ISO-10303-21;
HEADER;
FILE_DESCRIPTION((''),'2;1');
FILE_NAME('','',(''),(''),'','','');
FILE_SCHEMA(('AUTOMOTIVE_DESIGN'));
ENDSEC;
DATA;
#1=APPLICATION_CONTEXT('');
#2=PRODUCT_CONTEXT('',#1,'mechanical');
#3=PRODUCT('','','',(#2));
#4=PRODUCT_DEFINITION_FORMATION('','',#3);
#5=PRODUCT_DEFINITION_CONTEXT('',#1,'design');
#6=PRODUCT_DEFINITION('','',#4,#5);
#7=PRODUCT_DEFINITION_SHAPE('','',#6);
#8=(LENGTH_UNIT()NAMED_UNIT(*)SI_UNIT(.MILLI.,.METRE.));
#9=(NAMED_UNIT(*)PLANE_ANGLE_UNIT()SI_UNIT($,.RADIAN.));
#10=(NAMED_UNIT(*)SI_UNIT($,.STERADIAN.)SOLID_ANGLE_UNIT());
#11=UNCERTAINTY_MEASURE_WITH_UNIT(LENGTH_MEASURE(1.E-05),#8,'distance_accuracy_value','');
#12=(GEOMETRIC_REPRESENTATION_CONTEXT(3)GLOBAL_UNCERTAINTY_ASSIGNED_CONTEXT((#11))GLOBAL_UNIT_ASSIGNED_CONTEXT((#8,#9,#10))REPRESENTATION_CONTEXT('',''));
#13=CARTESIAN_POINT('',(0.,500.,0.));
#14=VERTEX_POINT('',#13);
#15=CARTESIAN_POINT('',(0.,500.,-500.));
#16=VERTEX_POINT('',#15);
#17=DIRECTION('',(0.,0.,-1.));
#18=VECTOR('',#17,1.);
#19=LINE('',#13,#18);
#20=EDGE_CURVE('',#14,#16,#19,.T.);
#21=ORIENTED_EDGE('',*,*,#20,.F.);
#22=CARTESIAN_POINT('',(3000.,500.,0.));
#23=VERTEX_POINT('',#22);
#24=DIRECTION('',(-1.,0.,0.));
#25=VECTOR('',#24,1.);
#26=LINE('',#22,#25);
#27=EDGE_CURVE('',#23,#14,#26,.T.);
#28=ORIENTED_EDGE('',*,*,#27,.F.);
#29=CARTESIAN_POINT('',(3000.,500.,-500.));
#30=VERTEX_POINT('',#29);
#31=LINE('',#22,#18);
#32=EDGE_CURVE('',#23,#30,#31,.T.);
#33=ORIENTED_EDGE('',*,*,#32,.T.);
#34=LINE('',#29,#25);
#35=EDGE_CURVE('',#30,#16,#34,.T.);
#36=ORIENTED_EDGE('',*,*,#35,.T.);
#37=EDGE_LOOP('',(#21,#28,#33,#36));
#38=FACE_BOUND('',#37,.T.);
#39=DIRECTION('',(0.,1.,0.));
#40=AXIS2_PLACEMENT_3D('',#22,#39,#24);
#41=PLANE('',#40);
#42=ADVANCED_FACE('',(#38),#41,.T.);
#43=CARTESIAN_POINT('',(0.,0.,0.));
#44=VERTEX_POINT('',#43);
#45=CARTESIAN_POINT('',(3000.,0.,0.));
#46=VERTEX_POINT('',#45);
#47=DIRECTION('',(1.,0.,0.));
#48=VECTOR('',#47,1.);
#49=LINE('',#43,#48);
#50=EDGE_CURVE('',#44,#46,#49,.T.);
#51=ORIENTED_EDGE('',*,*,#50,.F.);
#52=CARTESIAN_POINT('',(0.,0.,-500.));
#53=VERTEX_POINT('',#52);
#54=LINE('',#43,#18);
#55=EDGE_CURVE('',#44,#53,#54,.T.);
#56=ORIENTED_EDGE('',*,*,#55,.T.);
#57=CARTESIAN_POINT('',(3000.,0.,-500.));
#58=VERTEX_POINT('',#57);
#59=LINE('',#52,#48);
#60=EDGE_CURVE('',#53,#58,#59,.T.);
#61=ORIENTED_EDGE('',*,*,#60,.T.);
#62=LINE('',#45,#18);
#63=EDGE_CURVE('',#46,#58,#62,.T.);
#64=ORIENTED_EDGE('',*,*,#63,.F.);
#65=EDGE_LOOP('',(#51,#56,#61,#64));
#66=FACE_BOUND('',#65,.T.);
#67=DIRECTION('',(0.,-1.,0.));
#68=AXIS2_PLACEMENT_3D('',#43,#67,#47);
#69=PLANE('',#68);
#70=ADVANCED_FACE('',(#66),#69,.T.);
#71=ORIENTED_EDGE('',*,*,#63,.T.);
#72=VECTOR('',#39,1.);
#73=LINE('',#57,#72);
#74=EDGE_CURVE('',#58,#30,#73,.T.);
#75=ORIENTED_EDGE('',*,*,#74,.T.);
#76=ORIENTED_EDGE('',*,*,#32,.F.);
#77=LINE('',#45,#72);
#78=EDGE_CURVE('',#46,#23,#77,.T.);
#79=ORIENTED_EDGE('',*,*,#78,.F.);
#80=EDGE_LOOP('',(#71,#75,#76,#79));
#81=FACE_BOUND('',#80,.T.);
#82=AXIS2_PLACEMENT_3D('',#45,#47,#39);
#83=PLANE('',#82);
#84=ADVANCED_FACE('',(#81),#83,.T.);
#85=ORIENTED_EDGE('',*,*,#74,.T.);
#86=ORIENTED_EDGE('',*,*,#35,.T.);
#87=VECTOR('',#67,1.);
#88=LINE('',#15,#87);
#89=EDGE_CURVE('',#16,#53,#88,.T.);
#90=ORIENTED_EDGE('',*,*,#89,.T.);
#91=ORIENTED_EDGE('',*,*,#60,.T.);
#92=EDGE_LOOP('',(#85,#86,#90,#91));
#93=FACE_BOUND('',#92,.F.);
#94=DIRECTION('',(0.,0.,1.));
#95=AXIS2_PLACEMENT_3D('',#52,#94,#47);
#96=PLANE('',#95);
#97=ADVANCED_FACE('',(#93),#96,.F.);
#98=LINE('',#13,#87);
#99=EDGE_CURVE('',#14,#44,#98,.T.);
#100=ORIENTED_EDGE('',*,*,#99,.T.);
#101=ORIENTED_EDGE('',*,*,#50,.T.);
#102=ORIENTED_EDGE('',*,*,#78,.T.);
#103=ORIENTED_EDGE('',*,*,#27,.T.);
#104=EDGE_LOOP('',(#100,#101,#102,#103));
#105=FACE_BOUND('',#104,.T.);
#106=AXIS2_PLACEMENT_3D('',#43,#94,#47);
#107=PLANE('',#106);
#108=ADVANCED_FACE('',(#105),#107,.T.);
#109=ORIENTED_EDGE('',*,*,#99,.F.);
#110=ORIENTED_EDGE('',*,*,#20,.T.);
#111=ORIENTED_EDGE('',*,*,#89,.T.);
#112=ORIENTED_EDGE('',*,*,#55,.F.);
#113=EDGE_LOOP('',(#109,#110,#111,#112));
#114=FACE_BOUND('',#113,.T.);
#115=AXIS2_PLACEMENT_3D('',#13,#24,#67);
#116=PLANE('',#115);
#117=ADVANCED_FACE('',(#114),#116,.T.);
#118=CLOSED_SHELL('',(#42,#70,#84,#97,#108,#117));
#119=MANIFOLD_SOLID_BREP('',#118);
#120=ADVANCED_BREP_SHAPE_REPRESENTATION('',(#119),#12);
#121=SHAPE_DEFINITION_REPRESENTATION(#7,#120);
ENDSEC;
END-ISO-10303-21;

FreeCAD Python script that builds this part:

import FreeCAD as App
import Part
import Sketcher

doc = App.newDocument("Part")
body = doc.addObject("PartDesign::Body", "Body")

sketch1 = body.newObject("Sketcher::SketchObject", "Sketch")
sketch1.AttachmentSupport = (doc.getObject("XY_Plane"), [""])
sketch1.MapMode = "FlatFace"
sketch1.addGeometry([
    Part.LineSegment(App.Vector(0, 500, 0), App.Vector(0, 0, 0)),
    Part.LineSegment(App.Vector(0, 0, 0), App.Vector(3000, 0, 0)),
    Part.LineSegment(App.Vector(3000, 0, 0), App.Vector(3000, 500, 0)),
    Part.LineSegment(App.Vector(3000, 500, 0), App.Vector(0, 500, 0)),
], False)
sketch1.addConstraint([
    Sketcher.Constraint("Coincident", 0, 2, 1, 1),
    Sketcher.Constraint("Coincident", 1, 2, 2, 1),
    Sketcher.Constraint("Coincident", 2, 2, 3, 1),
    Sketcher.Constraint("Coincident", 3, 2, 0, 1),
    Sketcher.Constraint("Vertical", 0),
    Sketcher.Constraint("Horizontal", 1),
    Sketcher.Constraint("Vertical", 2),
    Sketcher.Constraint("Horizontal", 3),
    Sketcher.Constraint("Coincident", 0, 2, -1, 1),
    Sketcher.Constraint("DistanceX", 1, 1, 1, 2, 3000.0),
    Sketcher.Constraint("DistanceY", 0, 2, 0, 1, 500.0),
])
pad1 = body.newObject("PartDesign::Pad", "Pad")
pad1.Profile = sketch1
pad1.Length = 500
pad1.Reversed = True

doc.recompute()
